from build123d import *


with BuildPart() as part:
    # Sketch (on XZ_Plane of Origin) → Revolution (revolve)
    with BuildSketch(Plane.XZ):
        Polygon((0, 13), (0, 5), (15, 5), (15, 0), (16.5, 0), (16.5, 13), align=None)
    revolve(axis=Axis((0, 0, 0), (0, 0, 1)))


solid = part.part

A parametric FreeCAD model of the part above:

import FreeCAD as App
import Part
import Sketcher
from FreeCAD import Vector


def add_polygon(sketch, points):
    """Adds a closed chain of lines whose ends are joined by coincident constraints."""
    first, n = sketch.GeometryCount, len(points)
    for a, b in zip(points, points[1:] + points[:1]):
        sketch.addGeometry(Part.LineSegment(App.Vector(*a, 0), App.Vector(*b, 0)), False)
    for i in range(n):
        sketch.addConstraint(Sketcher.Constraint("Coincident", first + i, 2, first + (i + 1) % n, 1))

doc = App.newDocument("Part")
params = doc.addObject("Spreadsheet::Sheet", "Params")
for row, (alias, value) in enumerate([
    ("sketch1_width", "15 mm"),
    ("sketch1_height", "8 mm"),
    ("sketch1_height2", "5 mm"),
    ("sketch1_width2", "1.5 mm"),
    ("revolution_angle", "360 deg"),
], start=1):
    params.set(f"A{row}", alias)
    params.set(f"B{row}", "=" + value)
    params.setAlias(f"B{row}", alias)

body = doc.addObject("PartDesign::Body", "Body")

# Sketch on XZ plane
sketch1 = doc.addObject("Sketcher::SketchObject", "Sketch")
body.addObject(sketch1)
sketch1.AttachmentSupport = (doc.XZ_Plane, [""])
sketch1.MapMode = "FlatFace"
add_polygon(sketch1, [(0, 13), (0, 5), (15, 5), (15, 0), (16.5, 0), (16.5, 13)])  # lines 0-5
sketch1.addConstraint(Sketcher.Constraint("Vertical", 0))
sketch1.addConstraint(Sketcher.Constraint("Horizontal", 1))
sketch1.addConstraint(Sketcher.Constraint("Vertical", 2))
sketch1.addConstraint(Sketcher.Constraint("Horizontal", 3))
sketch1.addConstraint(Sketcher.Constraint("Vertical", 4))
sketch1.addConstraint(Sketcher.Constraint("Horizontal", 5))
sketch1.addConstraint(Sketcher.Constraint("PointOnObject", 0, 2, -2))
sketch1.addConstraint(Sketcher.Constraint("PointOnObject", 2, 2, -1))
sketch1.addConstraint(Sketcher.Constraint("DistanceX", 1, 1, 1, 2, 15.0))
sketch1.addConstraint(Sketcher.Constraint("DistanceY", 0, 2, 0, 1, 8.0))
sketch1.addConstraint(Sketcher.Constraint("DistanceY", 2, 2, 2, 1, 5.0))
sketch1.addConstraint(Sketcher.Constraint("DistanceX", 3, 1, 3, 2, 1.5))
sketch1.setExpression("Constraints[14]", "Params.sketch1_width")
sketch1.setExpression("Constraints[15]", "Params.sketch1_height")
sketch1.setExpression("Constraints[16]", "Params.sketch1_height2")
sketch1.setExpression("Constraints[17]", "Params.sketch1_width2")
revolution = doc.addObject("PartDesign::Revolution", "Revolution")
body.addObject(revolution)
revolution.Profile = sketch1
revolution.ReferenceAxis = (sketch1, ["V_Axis"])
revolution.setExpression("Angle", "Params.revolution_angle")

doc.recompute()
